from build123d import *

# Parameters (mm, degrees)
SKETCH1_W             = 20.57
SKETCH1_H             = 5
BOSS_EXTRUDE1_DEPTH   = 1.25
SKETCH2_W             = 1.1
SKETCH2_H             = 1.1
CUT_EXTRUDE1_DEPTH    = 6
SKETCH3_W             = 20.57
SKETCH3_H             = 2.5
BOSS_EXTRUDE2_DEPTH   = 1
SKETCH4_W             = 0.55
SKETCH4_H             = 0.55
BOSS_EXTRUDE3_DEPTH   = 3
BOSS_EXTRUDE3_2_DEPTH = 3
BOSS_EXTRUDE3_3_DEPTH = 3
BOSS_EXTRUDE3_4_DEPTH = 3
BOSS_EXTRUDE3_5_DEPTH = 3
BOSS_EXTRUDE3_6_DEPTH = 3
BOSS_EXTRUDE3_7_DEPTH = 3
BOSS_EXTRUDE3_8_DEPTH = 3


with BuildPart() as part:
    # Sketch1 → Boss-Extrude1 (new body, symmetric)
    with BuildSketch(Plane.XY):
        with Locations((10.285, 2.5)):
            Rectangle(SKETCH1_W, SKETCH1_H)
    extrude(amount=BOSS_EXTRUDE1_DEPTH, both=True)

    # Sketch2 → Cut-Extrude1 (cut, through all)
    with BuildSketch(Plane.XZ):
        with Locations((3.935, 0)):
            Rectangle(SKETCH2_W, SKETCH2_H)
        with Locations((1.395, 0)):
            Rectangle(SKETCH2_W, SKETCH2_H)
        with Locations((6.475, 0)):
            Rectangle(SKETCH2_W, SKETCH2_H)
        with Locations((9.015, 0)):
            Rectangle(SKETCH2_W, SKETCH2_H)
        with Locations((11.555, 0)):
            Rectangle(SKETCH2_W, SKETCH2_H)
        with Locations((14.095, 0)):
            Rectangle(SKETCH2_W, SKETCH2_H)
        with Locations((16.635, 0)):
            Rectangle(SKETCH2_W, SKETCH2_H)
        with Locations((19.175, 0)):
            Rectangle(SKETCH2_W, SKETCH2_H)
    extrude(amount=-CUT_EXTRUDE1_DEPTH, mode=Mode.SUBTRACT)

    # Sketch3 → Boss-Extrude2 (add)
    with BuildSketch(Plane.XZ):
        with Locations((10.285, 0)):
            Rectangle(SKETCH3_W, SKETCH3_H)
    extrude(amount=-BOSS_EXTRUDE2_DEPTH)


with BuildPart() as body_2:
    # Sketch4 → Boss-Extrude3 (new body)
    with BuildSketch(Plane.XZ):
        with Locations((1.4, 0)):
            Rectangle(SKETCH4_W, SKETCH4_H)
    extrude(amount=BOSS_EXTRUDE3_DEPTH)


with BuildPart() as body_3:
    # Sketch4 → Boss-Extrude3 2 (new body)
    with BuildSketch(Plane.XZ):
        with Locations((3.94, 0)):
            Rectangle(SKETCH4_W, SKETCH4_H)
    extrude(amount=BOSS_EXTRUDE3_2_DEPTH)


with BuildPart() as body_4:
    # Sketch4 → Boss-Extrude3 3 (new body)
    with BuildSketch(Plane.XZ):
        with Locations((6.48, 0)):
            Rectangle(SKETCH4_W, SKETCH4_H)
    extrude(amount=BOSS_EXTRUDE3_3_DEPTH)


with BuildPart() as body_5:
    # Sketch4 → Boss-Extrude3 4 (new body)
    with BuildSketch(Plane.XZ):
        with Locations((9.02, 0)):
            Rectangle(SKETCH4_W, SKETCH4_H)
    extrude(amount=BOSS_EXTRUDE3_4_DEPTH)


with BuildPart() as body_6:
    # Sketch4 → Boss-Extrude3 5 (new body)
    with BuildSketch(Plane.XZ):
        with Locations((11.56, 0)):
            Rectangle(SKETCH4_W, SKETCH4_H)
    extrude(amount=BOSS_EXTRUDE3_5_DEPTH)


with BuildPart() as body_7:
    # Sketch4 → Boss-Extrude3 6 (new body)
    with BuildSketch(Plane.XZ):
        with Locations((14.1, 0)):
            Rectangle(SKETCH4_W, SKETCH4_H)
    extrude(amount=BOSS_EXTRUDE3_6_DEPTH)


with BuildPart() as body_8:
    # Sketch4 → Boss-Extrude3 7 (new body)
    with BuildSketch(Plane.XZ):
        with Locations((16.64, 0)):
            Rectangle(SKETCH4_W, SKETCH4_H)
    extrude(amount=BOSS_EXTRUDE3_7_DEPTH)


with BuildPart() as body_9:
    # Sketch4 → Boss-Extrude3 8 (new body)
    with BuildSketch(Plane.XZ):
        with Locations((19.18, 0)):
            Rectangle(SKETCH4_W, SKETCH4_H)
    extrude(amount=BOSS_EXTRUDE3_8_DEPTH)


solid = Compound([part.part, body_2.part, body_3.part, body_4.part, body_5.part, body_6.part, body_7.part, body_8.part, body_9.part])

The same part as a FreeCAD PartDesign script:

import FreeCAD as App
import Part
import Sketcher
from FreeCAD import Vector
Q = App.Units.Quantity


def add_polygon(sketch, points):
    """Adds a closed chain of lines whose ends are joined by coincident constraints."""
    first, n = sketch.GeometryCount, len(points)
    for a, b in zip(points, points[1:] + points[:1]):
        sketch.addGeometry(Part.LineSegment(App.Vector(*a, 0), App.Vector(*b, 0)), False)
    for i in range(n):
        sketch.addConstraint(Sketcher.Constraint("Coincident", first + i, 2, first + (i + 1) % n, 1))

doc = App.newDocument("Part")
body = doc.addObject("PartDesign::Body", "Body")

sketch1 = body.newObject("Sketcher::SketchObject", "Sketch")
sketch1.AttachmentSupport = (doc.getObject("XY_Plane"), [""])
sketch1.MapMode = "FlatFace"
add_polygon(sketch1, [(0, 5), (0, 0), (21, 0), (21, 5)])
sketch1.addConstraint([
    Sketcher.Constraint("Vertical", 0),
    Sketcher.Constraint("Horizontal", 1),
    Sketcher.Constraint("Vertical", 2),
    Sketcher.Constraint("Horizontal", 3),
    Sketcher.Constraint("Coincident", 0, 2, -1, 1),
    Sketcher.Constraint("DistanceY", 0, 2, 0, 1, Q("5 mm")),
    Sketcher.Constraint("DistanceX", 1, 1, 1, 2, Q("20.57 mm")),
])
pad1 = body.newObject("PartDesign::Pad", "Pad")
pad1.Profile = sketch1
pad1.Length = 2.5
pad1.Midplane = True

sketch2 = body.newObject("Sketcher::SketchObject", "Sketch001")
sketch2.AttachmentSupport = (doc.getObject("XZ_Plane"), [""])
sketch2.MapMode = "FlatFace"
add_polygon(sketch2, [(3.4, 0.6), (3.4, -0.6), (4.5, -0.6), (4.5, 0.6)])
add_polygon(sketch2, [(0.8, 0.6), (0.8, -0.6), (1.9, -0.6), (1.9, 0.6)])
add_polygon(sketch2, [(5.9, 0.6), (5.9, -0.6), (7, -0.6), (7, 0.6)])
add_polygon(sketch2, [(8.5, 0.6), (8.5, -0.6), (9.6, -0.6), (9.6, 0.6)])
add_polygon(sketch2, [(11, 0.6), (11, -0.6), (12.1, -0.6), (12.1, 0.6)])
add_polygon(sketch2, [(13.5, 0.6), (13.5, -0.6), (14.6, -0.6), (14.6, 0.6)])
add_polygon(sketch2, [(16.1, 0.6), (16.1, -0.6), (17.2, -0.6), (17.2, 0.6)])
add_polygon(sketch2, [(18.6, 0.6), (18.6, -0.6), (19.7, -0.6), (19.7, 0.6)])
sketch2.addConstraint([
    Sketcher.Constraint("Vertical", 0),
    Sketcher.Constraint("Horizontal", 1),
    Sketcher.Constraint("Vertical", 2),
    Sketcher.Constraint("Horizontal", 3),
    Sketcher.Constraint("Vertical", 4),
    Sketcher.Constraint("Horizontal", 5),
    Sketcher.Constraint("Vertical", 6),
    Sketcher.Constraint("Horizontal", 7),
    Sketcher.Constraint("Vertical", 8),
    Sketcher.Constraint("Horizontal", 9),
    Sketcher.Constraint("Vertical", 10),
    Sketcher.Constraint("Horizontal", 11),
    Sketcher.Constraint("Vertical", 12),
    Sketcher.Constraint("Horizontal", 13),
    Sketcher.Constraint("Vertical", 14),
    Sketcher.Constraint("Horizontal", 15),
    Sketcher.Constraint("Vertical", 16),
    Sketcher.Constraint("Horizontal", 17),
    Sketcher.Constraint("Vertical", 18),
    Sketcher.Constraint("Horizontal", 19),
    Sketcher.Constraint("Vertical", 20),
    Sketcher.Constraint("Horizontal", 21),
    Sketcher.Constraint("Vertical", 22),
    Sketcher.Constraint("Horizontal", 23),
    Sketcher.Constraint("Vertical", 24),
    Sketcher.Constraint("Horizontal", 25),
    Sketcher.Constraint("Vertical", 26),
    Sketcher.Constraint("Horizontal", 27),
    Sketcher.Constraint("Vertical", 28),
    Sketcher.Constraint("Horizontal", 29),
    Sketcher.Constraint("Vertical", 30),
    Sketcher.Constraint("Horizontal", 31),
    Sketcher.Constraint("Horizontal", 1, 2, 4, 2),
    Sketcher.Constraint("Horizontal", 3, 2, 6, 2),
    Sketcher.Constraint("Horizontal", 5, 2, 8, 2),
    Sketcher.Constraint("Horizontal", 7, 2, 10, 2),
    Sketcher.Constraint("Horizontal", 9, 2, 12, 2),
    Sketcher.Constraint("Horizontal", 11, 2, 14, 2),
    Sketcher.Constraint("Horizontal", 13, 2, 16, 2),
    Sketcher.Constraint("Horizontal", 15, 2, 18, 2),
    Sketcher.Constraint("Horizontal", 17, 2, 20, 2),
    Sketcher.Constraint("Horizontal", 19, 2, 22, 2),
    Sketcher.Constraint("Horizontal", 21, 2, 24, 2),
    Sketcher.Constraint("Horizontal", 23, 2, 26, 2),
    Sketcher.Constraint("Horizontal", 25, 2, 28, 2),
    Sketcher.Constraint("Horizontal", 27, 2, 30, 2),
    Sketcher.Constraint("Equal", 3, 5),
    Sketcher.Constraint("Equal", 7, 9),
    Sketcher.Constraint("Equal", 11, 13),
    Sketcher.Constraint("Equal", 15, 17),
    Sketcher.Constraint("Equal", 19, 21),
    Sketcher.Constraint("Equal", 23, 25),
    Sketcher.Constraint("Equal", 27, 29),
    Sketcher.Constraint("Equal", 31, 0),
    Sketcher.Constraint("DistanceX", 1, 1, 1, 2, Q("1.1 mm")),
    Sketcher.Constraint("DistanceY", 0, 2, -1, 1, Q("0.55 mm")),
    Sketcher.Constraint("DistanceX", 4, 2, 0, 2, Q("2.54 mm")),
    Sketcher.Constraint("DistanceX", 1, 2, 8, 2, Q("1.44 mm")),
    Sketcher.Constraint("DistanceX", 9, 2, 12, 2, Q("1.44 mm")),
    Sketcher.Constraint("DistanceX", 13, 2, 16, 2, Q("1.44 mm")),
    Sketcher.Constraint("DistanceX", 17, 2, 20, 2, Q("1.44 mm")),
    Sketcher.Constraint("DistanceX", 21, 2, 24, 2, Q("1.44 mm")),
    Sketcher.Constraint("DistanceX", 25, 2, 28, 2, Q("1.44 mm")),
    Sketcher.Constraint("DistanceX", -1, 1, 0, 2, Q("3.385 mm")),
])
pocket1 = body.newObject("PartDesign::Pocket", "Pocket")
pocket1.Profile = sketch2
pocket1.Type = "ThroughAll"

sketch3 = body.newObject("Sketcher::SketchObject", "Sketch002")
sketch3.AttachmentSupport = (doc.getObject("XZ_Plane"), [""])
sketch3.MapMode = "FlatFace"
add_polygon(sketch3, [(0, 1.2), (0, -1.2), (20.6, -1.2), (20.6, 1.2)])
sketch3.addConstraint([
    Sketcher.Constraint("Vertical", 0),
    Sketcher.Constraint("Horizontal", 1),
    Sketcher.Constraint("Vertical", 2),
    Sketcher.Constraint("Horizontal", 3),
    Sketcher.Constraint("Symmetric", 0, 2, 3, 2, -1, 1),
    Sketcher.Constraint("DistanceY", 0, 2, 0, 1, Q("2.5 mm")),
    Sketcher.Constraint("DistanceX", 1, 1, 1, 2, Q("20.57 mm")),
])
pad2 = body.newObject("PartDesign::Pad", "Pad001")
pad2.Profile = sketch3
pad2.Length = 1
pad2.Reversed = True
body2 = doc.addObject("PartDesign::Body", "Body001")

sketch4 = body2.newObject("Sketcher::SketchObject", "Sketch003")
sketch4.AttachmentSupport = (doc.getObject("XZ_Plane001"), [""])
sketch4.MapMode = "FlatFace"
add_polygon(sketch4, [(1.1, 0.3), (1.1, -0.3), (1.7, -0.3), (1.7, 0.3)])
sketch4.addConstraint([
    Sketcher.Constraint("Vertical", 0),
    Sketcher.Constraint("Horizontal", 1),
    Sketcher.Constraint("Vertical", 2),
    Sketcher.Constraint("Horizontal", 3),
    Sketcher.Constraint("Equal", 3, 0),
    Sketcher.Constraint("DistanceX", 1, 1, 1, 2, Q("0.55 mm")),
    Sketcher.Constraint("DistanceX", -1, 1, 0, 2, Q("1.125 mm")),
    Sketcher.Constraint("DistanceY", 0, 2, -1, 1, Q("0.275 mm")),
])
pad3 = body2.newObject("PartDesign::Pad", "Pad002")
pad3.Profile = sketch4
pad3.Length = 3
body3 = doc.addObject("PartDesign::Body", "Body002")

sketch5 = body3.newObject("Sketcher::SketchObject", "Sketch004")
sketch5.AttachmentSupport = (doc.getObject("XZ_Plane002"), [""])
sketch5.MapMode = "FlatFace"
add_polygon(sketch5, [(3.7, 0.3), (3.7, -0.3), (4.2, -0.3), (4.2, 0.3)])
sketch5.addConstraint([
    Sketcher.Constraint("Vertical", 0),
    Sketcher.Constraint("Horizontal", 1),
    Sketcher.Constraint("Vertical", 2),
    Sketcher.Constraint("Horizontal", 3),
    Sketcher.Constraint("Equal", 3, 0),
    Sketcher.Constraint("DistanceX", 1, 1, 1, 2, Q("0.55 mm")),
    Sketcher.Constraint("DistanceX", -1, 1, 0, 2, Q("3.665 mm")),
    Sketcher.Constraint("DistanceY", 0, 2, -1, 1, Q("0.275 mm")),
])
pad4 = body3.newObject("PartDesign::Pad", "Pad003")
pad4.Profile = sketch5
pad4.Length = 3
body4 = doc.addObject("PartDesign::Body", "Body003")

sketch6 = body4.newObject("Sketcher::SketchObject", "Sketch005")
sketch6.AttachmentSupport = (doc.getObject("XZ_Plane003"), [""])
sketch6.MapMode = "FlatFace"
add_polygon(sketch6, [(6.2, 0.3), (6.2, -0.3), (6.8, -0.3), (6.8, 0.3)])
sketch6.addConstraint([
    Sketcher.Constraint("Vertical", 0),
    Sketcher.Constraint("Horizontal", 1),
    Sketcher.Constraint("Vertical", 2),
    Sketcher.Constraint("Horizontal", 3),
    Sketcher.Constraint("Equal", 3, 0),
    Sketcher.Constraint("DistanceX", 1, 1, 1, 2, Q("0.55 mm")),
    Sketcher.Constraint("DistanceX", -1, 1, 0, 2, Q("6.205 mm")),
    Sketcher.Constraint("DistanceY", 0, 2, -1, 1, Q("0.275 mm")),
])
pad5 = body4.newObject("PartDesign::Pad", "Pad004")
pad5.Profile = sketch6
pad5.Length = 3
body5 = doc.addObject("PartDesign::Body", "Body004")

sketch7 = body5.newObject("Sketcher::SketchObject", "Sketch006")
sketch7.AttachmentSupport = (doc.getObject("XZ_Plane004"), [""])
sketch7.MapMode = "FlatFace"
add_polygon(sketch7, [(8.7, 0.3), (8.7, -0.3), (9.3, -0.3), (9.3, 0.3)])
sketch7.addConstraint([
    Sketcher.Constraint("Vertical", 0),
    Sketcher.Constraint("Horizontal", 1),
    Sketcher.Constraint("Vertical", 2),
    Sketcher.Constraint("Horizontal", 3),
    Sketcher.Constraint("Equal", 3, 0),
    Sketcher.Constraint("DistanceX", 1, 1, 1, 2, Q("0.55 mm")),
    Sketcher.Constraint("DistanceX", -1, 1, 0, 2, Q("8.745 mm")),
    Sketcher.Constraint("DistanceY", 0, 2, -1, 1, Q("0.275 mm")),
])
pad6 = body5.newObject("PartDesign::Pad", "Pad005")
pad6.Profile = sketch7
pad6.Length = 3
body6 = doc.addObject("PartDesign::Body", "Body005")

sketch8 = body6.newObject("Sketcher::SketchObject", "Sketch007")
sketch8.AttachmentSupport = (doc.getObject("XZ_Plane005"), [""])
sketch8.MapMode = "FlatFace"
add_polygon(sketch8, [(11.3, 0.3), (11.3, -0.3), (11.8, -0.3), (11.8, 0.3)])
sketch8.addConstraint([
    Sketcher.Constraint("Vertical", 0),
    Sketcher.Constraint("Horizontal", 1),
    Sketcher.Constraint("Vertical", 2),
    Sketcher.Constraint("Horizontal", 3),
    Sketcher.Constraint("Equal", 3, 0),
    Sketcher.Constraint("DistanceX", 1, 1, 1, 2, Q("0.55 mm")),
    Sketcher.Constraint("DistanceX", -1, 1, 0, 2, Q("11.285 mm")),
    Sketcher.Constraint("DistanceY", 0, 2, -1, 1, Q("0.275 mm")),
])
pad7 = body6.newObject("PartDesign::Pad", "Pad006")
pad7.Profile = sketch8
pad7.Length = 3
body7 = doc.addObject("PartDesign::Body", "Body006")

sketch9 = body7.newObject("Sketcher::SketchObject", "Sketch008")
sketch9.AttachmentSupport = (doc.getObject("XZ_Plane006"), [""])
sketch9.MapMode = "FlatFace"
add_polygon(sketch9, [(13.8, 0.3), (13.8, -0.3), (14.4, -0.3), (14.4, 0.3)])
sketch9.addConstraint([
    Sketcher.Constraint("Vertical", 0),
    Sketcher.Constraint("Horizontal", 1),
    Sketcher.Constraint("Vertical", 2),
    Sketcher.Constraint("Horizontal", 3),
    Sketcher.Constraint("Equal", 3, 0),
    Sketcher.Constraint("DistanceX", 1, 1, 1, 2, Q("0.55 mm")),
    Sketcher.Constraint("DistanceX", -1, 1, 0, 2, Q("13.825 mm")),
    Sketcher.Constraint("DistanceY", 0, 2, -1, 1, Q("0.275 mm")),
])
pad8 = body7.newObject("PartDesign::Pad", "Pad007")
pad8.Profile = sketch9
pad8.Length = 3
body8 = doc.addObject("PartDesign::Body", "Body007")

sketch10 = body8.newObject("Sketcher::SketchObject", "Sketch009")
sketch10.AttachmentSupport = (doc.getObject("XZ_Plane007"), [""])
sketch10.MapMode = "FlatFace"
add_polygon(sketch10, [(16.4, 0.3), (16.4, -0.3), (16.9, -0.3), (16.9, 0.3)])
sketch10.addConstraint([
    Sketcher.Constraint("Vertical", 0),
    Sketcher.Constraint("Horizontal", 1),
    Sketcher.Constraint("Vertical", 2),
    Sketcher.Constraint("Horizontal", 3),
    Sketcher.Constraint("Equal", 3, 0),
    Sketcher.Constraint("DistanceX", 1, 1, 1, 2, Q("0.55 mm")),
    Sketcher.Constraint("DistanceX", -1, 1, 0, 2, Q("16.365 mm")),
    Sketcher.Constraint("DistanceY", 0, 2, -1, 1, Q("0.275 mm")),
])
pad9 = body8.newObject("PartDesign::Pad", "Pad008")
pad9.Profile = sketch10
pad9.Length = 3
body9 = doc.addObject("PartDesign::Body", "Body008")

sketch11 = body9.newObject("Sketcher::SketchObject", "Sketch010")
sketch11.AttachmentSupport = (doc.getObject("XZ_Plane008"), [""])
sketch11.MapMode = "FlatFace"
add_polygon(sketch11, [(18.9, 0.3), (18.9, -0.3), (19.5, -0.3), (19.5, 0.3)])
sketch11.addConstraint([
    Sketcher.Constraint("Vertical", 0),
    Sketcher.Constraint("Horizontal", 1),
    Sketcher.Constraint("Vertical", 2),
    Sketcher.Constraint("Horizontal", 3),
    Sketcher.Constraint("Equal", 3, 0),
    Sketcher.Constraint("DistanceX", 1, 1, 1, 2, Q("0.55 mm")),
    Sketcher.Constraint("DistanceX", -1, 1, 0, 2, Q("18.905 mm")),
    Sketcher.Constraint("DistanceY", 0, 2, -1, 1, Q("0.275 mm")),
])
pad10 = body9.newObject("PartDesign::Pad", "Pad009")
pad10.Profile = sketch11
pad10.Length = 3

doc.recompute()
